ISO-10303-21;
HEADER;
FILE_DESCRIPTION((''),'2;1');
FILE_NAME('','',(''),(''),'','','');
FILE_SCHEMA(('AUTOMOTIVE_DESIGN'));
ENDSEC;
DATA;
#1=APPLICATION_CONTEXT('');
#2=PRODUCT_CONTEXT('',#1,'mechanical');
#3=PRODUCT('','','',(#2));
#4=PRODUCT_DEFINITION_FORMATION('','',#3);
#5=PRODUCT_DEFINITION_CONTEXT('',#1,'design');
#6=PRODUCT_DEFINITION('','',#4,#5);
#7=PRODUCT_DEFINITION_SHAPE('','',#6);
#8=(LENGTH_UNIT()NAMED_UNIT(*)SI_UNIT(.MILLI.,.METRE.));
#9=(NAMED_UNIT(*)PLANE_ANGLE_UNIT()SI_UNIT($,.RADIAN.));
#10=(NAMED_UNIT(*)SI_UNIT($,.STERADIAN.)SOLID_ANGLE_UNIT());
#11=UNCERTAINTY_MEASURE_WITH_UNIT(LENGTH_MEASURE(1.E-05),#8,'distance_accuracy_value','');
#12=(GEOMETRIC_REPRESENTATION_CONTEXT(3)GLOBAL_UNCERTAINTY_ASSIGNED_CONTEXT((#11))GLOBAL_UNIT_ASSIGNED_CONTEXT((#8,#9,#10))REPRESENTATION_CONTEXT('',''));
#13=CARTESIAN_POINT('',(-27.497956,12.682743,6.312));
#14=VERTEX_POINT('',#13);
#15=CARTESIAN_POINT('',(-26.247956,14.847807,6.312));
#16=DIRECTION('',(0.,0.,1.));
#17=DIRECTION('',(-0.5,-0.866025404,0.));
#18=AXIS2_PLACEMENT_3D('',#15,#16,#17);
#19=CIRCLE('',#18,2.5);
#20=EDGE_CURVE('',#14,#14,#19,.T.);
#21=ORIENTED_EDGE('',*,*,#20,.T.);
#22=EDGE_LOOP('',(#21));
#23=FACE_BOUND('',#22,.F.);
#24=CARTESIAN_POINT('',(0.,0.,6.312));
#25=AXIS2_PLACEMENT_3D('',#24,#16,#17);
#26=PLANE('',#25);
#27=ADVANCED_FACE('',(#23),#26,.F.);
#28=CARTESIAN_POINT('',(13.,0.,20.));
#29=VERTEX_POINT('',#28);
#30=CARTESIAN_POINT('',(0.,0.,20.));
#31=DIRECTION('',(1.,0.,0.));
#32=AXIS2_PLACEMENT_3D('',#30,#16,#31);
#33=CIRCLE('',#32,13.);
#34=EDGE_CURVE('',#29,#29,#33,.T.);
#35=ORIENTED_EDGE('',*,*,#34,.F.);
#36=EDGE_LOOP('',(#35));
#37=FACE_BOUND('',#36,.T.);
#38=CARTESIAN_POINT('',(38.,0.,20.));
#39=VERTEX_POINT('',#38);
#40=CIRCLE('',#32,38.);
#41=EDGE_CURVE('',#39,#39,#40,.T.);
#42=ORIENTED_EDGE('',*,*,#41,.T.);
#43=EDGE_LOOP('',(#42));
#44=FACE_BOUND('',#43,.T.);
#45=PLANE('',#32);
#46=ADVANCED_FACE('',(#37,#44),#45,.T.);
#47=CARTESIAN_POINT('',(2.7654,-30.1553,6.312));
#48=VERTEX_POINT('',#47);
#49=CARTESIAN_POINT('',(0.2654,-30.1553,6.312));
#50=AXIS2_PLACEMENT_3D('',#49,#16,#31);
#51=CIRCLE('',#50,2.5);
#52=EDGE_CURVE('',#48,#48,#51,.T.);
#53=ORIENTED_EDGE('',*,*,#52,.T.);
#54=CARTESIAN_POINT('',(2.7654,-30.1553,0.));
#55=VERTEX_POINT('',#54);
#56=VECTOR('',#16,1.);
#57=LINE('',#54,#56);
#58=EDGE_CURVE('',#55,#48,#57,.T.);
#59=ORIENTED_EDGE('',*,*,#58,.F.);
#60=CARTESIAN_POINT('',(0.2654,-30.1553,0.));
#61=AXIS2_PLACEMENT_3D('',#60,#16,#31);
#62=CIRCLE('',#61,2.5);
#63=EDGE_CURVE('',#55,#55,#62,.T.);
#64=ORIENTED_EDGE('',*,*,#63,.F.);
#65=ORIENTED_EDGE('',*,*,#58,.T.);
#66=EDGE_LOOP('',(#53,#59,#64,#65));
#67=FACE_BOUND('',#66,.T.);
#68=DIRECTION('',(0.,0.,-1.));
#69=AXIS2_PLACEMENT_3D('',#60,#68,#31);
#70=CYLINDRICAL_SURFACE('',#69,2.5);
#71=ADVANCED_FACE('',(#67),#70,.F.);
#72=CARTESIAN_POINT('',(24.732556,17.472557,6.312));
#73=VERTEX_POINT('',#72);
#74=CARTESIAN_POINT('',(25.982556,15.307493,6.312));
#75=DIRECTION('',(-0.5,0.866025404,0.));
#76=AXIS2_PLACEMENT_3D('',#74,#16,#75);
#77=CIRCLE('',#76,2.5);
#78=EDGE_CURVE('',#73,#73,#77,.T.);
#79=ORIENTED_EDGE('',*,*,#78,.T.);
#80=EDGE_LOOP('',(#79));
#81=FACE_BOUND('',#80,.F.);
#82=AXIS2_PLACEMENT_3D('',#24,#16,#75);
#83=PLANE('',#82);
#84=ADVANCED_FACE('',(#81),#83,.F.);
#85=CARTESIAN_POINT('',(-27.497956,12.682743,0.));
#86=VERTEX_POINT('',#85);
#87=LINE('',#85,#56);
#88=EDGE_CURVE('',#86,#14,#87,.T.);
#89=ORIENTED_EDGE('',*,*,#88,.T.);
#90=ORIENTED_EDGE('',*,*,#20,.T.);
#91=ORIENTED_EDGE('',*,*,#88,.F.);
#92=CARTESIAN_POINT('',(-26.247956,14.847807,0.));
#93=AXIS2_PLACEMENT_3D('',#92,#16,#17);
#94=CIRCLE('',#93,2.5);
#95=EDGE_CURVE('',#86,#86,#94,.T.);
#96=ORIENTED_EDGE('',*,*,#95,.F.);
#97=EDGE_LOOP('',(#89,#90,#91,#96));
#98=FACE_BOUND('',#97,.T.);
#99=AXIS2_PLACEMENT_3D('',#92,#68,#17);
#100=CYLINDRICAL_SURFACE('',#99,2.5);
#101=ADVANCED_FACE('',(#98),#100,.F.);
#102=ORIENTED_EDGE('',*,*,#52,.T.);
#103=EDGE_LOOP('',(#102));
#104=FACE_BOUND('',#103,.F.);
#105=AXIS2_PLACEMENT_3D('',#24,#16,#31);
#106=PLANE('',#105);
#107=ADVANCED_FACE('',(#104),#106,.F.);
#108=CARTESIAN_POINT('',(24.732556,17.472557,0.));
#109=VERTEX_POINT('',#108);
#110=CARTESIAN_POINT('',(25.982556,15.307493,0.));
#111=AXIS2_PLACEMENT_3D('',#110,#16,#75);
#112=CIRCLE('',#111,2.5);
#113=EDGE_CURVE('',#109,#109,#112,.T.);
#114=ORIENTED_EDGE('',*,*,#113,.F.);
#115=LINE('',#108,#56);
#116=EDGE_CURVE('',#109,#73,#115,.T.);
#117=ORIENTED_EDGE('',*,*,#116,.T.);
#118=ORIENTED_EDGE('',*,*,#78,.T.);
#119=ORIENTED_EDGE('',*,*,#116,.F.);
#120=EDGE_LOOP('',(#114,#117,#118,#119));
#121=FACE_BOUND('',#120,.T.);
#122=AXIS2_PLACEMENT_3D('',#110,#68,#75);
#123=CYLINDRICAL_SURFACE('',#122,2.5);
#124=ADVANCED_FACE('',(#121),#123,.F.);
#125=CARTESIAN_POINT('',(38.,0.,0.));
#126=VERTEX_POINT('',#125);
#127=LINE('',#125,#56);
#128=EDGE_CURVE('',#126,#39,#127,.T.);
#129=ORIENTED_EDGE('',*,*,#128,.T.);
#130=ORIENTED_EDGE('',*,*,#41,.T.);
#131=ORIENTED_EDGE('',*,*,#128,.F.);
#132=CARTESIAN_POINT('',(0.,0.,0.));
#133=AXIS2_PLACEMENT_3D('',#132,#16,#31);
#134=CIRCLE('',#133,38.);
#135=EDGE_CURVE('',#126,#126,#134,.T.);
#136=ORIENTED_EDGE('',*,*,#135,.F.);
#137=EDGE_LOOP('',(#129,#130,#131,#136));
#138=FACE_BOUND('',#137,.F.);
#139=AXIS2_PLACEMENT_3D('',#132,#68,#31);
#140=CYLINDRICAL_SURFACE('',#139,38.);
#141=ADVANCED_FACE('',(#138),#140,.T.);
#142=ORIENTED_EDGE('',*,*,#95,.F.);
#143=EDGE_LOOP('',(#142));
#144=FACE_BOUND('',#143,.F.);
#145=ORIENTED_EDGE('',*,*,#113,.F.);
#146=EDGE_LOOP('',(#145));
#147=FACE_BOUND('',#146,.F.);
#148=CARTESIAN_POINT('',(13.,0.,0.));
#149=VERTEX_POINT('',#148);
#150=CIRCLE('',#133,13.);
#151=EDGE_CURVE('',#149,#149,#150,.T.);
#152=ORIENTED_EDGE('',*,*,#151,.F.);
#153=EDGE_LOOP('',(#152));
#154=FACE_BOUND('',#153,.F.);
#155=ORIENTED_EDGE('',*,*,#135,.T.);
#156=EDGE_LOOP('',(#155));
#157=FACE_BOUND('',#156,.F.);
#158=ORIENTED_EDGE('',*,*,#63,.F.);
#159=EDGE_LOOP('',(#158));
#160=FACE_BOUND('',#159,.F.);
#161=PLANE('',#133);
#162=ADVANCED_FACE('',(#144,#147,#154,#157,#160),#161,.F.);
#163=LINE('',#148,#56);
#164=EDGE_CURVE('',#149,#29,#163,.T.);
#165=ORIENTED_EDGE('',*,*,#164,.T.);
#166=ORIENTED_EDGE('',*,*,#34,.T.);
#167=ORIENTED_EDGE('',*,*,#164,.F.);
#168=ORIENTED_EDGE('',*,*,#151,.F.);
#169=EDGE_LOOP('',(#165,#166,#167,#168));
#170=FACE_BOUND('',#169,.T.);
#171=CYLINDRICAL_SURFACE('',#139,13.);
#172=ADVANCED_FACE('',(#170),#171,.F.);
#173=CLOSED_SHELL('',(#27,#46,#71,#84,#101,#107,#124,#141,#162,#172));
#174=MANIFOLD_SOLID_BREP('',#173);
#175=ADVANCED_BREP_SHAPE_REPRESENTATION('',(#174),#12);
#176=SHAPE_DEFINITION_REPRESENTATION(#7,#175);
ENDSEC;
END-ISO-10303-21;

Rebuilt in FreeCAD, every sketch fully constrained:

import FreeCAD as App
import Part
import Sketcher

V = App.Vector
Q = App.Units.Quantity

doc = App.newDocument("Part")
body = doc.addObject("PartDesign::Body", "Body")

# Sketch on XY plane
sketch1 = body.newObject("Sketcher::SketchObject", "Sketch")
sketch1.AttachmentSupport = (doc.getObject("XY_Plane"), [""])
sketch1.MapMode = "FlatFace"
sketch1.addGeometry([
    Part.Circle(V(0, 0, 0), V(0, 0, 1), 22.5),
    Part.Circle(V(0, 0, 0), V(0, 0, 1), 13),
], False)
sketch1.addConstraint([
    Sketcher.Constraint("Coincident", 0, 3, -1, 1),
    Sketcher.Constraint("Coincident", 1, 3, -1, 1),
    Sketcher.Constraint("Diameter", 0, Q("45 mm")),
    Sketcher.Constraint("Diameter", 1, Q("26 mm")),
])
pad1 = body.newObject("PartDesign::Pad", "Pad")
pad1.Profile = sketch1
pad1.Length = 20

# Sketch on XY plane
sketch2 = body.newObject("Sketcher::SketchObject", "Sketch001")
sketch2.AttachmentSupport = (doc.getObject("XY_Plane"), [""])
sketch2.MapMode = "FlatFace"
sketch2.addGeometry([
    Part.Circle(V(0, 0, 0), V(0, 0, 1), 38),
    Part.Circle(V(0, 0, 0), V(0, 0, 1), 13),
], False)
sketch2.addConstraint([
    Sketcher.Constraint("Coincident", 0, 3, -1, 1),
    Sketcher.Constraint("Coincident", 1, 3, -1, 1),
    Sketcher.Constraint("Diameter", 0, Q("76 mm")),
    Sketcher.Constraint("Diameter", 1, Q("26 mm")),
])
pad2 = body.newObject("PartDesign::Pad", "Pad001")
pad2.Profile = sketch2
pad2.Length = 20

# Sketch on XY plane
sketch3 = body.newObject("Sketcher::SketchObject", "Sketch002")
sketch3.AttachmentSupport = (doc.getObject("XY_Plane"), [""])
sketch3.MapMode = "FlatFace"
sketch3.addGeometry(Part.Circle(V(0.2654, -30.1553, 0), V(0, 0, 1), 2.5), False)
sketch3.addConstraint([
    Sketcher.Constraint("Diameter", 0, Q("5 mm")),
    Sketcher.Constraint("DistanceX", -1, 1, 0, 3, Q("0.2654 mm")),
    Sketcher.Constraint("DistanceY", 0, 3, -1, 1, Q("30.1553 mm")),
])
pocket1 = body.newObject("PartDesign::Pocket", "Pocket")
pocket1.Profile = sketch3
pocket1.Length = 6.312
pocket1.Reversed = True
doc.recompute()

polarpattern = body.newObject("PartDesign::PolarPattern", "PolarPattern")
polarpattern.Originals = [pocket1]
polarpattern.Axis = (doc.getObject("Z_Axis"), [""])
polarpattern.Angle = 360
polarpattern.Occurrences = 3
body.Tip = polarpattern

doc.recompute()
